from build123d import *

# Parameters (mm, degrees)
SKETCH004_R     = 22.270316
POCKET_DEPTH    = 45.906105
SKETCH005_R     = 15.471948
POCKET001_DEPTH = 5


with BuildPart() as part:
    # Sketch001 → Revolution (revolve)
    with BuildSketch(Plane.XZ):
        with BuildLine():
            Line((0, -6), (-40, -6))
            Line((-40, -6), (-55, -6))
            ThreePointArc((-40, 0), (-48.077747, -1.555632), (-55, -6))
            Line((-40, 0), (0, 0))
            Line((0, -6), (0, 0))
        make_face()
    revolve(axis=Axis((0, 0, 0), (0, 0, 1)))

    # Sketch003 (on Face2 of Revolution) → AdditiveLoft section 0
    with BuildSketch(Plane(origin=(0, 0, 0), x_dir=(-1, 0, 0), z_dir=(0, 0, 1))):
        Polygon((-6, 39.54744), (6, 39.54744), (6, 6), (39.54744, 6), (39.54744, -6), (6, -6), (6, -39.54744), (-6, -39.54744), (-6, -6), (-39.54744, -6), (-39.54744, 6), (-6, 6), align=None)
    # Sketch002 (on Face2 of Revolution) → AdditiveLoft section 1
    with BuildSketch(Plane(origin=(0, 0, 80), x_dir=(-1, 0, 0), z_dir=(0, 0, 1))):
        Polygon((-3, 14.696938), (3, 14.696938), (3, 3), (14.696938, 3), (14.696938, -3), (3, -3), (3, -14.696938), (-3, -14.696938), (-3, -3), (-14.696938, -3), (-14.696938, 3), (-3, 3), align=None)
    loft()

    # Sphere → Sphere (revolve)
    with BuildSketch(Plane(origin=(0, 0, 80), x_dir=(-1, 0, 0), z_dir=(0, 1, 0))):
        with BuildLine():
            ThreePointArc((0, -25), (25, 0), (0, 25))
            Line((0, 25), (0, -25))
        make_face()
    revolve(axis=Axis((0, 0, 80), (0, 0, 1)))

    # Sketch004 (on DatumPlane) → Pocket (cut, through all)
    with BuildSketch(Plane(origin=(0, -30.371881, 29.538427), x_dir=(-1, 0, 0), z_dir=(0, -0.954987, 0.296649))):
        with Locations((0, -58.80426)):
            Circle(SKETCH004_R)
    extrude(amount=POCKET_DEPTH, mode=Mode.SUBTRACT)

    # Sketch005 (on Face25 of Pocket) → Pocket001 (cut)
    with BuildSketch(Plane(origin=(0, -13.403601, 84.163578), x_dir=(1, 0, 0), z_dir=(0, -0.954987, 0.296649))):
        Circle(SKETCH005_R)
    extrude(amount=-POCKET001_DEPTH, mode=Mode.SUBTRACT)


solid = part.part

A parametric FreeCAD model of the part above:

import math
import FreeCAD as App
import Part
import Sketcher


def add_polygon(sketch, points):
    """Adds a closed chain of lines whose ends are joined by coincident constraints."""
    first, n = sketch.GeometryCount, len(points)
    for a, b in zip(points, points[1:] + points[:1]):
        sketch.addGeometry(Part.LineSegment(App.Vector(*a, 0), App.Vector(*b, 0)), False)
    for i in range(n):
        sketch.addConstraint(Sketcher.Constraint("Coincident", first + i, 2, first + (i + 1) % n, 1))

doc = App.newDocument("Part")
body = doc.addObject("PartDesign::Body", "Body")

# Sketch on XZ plane
sketch1 = body.newObject("Sketcher::SketchObject", "Sketch")
sketch1.AttachmentSupport = (doc.getObject("XZ_Plane"), [""])
sketch1.MapMode = "FlatFace"
sketch1.addGeometry([
    Part.LineSegment(App.Vector(-55, -6, 0), App.Vector(0, -6, 0)),
    Part.LineSegment(App.Vector(0, -6, 0), App.Vector(0, 0, 0)),
    Part.LineSegment(App.Vector(0, 0, 0), App.Vector(-40, 0, 0)),
    Part.ArcOfCircle(Part.Circle(App.Vector(-40, -22, 0), App.Vector(0, 0, 1), 22), math.radians(90), math.radians(134)),
], False)
sketch1.addConstraint([
    Sketcher.Constraint("Coincident", 0, 2, 1, 1),
    Sketcher.Constraint("Coincident", 1, 2, 2, 1),
    Sketcher.Constraint("Tangent", 2, 2, 3, 1),
    Sketcher.Constraint("Coincident", 3, 2, 0, 1),
    Sketcher.Constraint("Horizontal", 0),
    Sketcher.Constraint("Vertical", 1),
    Sketcher.Constraint("Horizontal", 2),
    Sketcher.Constraint("Coincident", 1, 2, -1, 1),
    Sketcher.Constraint("DistanceX", 0, 1, 0, 2, 55.0),
    Sketcher.Constraint("DistanceX", 2, 2, 2, 1, 40.0),
    Sketcher.Constraint("DistanceY", 1, 1, 1, 2, 6.0),
])
revolution = body.newObject("PartDesign::Revolution", "Revolution")
revolution.Profile = sketch1
revolution.ReferenceAxis = (sketch1, ["V_Axis"])
revolution.Angle = 360

# Sketch on XY plane
sketch2 = body.newObject("Sketcher::SketchObject", "Sketch001")
sketch2.AttachmentSupport = (doc.getObject("XY_Plane"), [""])
sketch2.MapMode = "FlatFace"
add_polygon(sketch2, [(-6, -40), (6, -40), (6, -6), (40, -6), (40, 6), (6, 6), (6, 40), (-6, 40), (-6, 6), (-40, 6), (-40, -6), (-6, -6)])  # lines 0-11
sketch2.addConstraint([
    Sketcher.Constraint("Horizontal", 0),
    Sketcher.Constraint("Vertical", 1),
    Sketcher.Constraint("Horizontal", 2),
    Sketcher.Constraint("Vertical", 3),
    Sketcher.Constraint("Horizontal", 4),
    Sketcher.Constraint("Vertical", 5),
    Sketcher.Constraint("Horizontal", 6),
    Sketcher.Constraint("Vertical", 7),
    Sketcher.Constraint("Horizontal", 8),
    Sketcher.Constraint("Vertical", 9),
    Sketcher.Constraint("Horizontal", 10),
    Sketcher.Constraint("Vertical", 11),
    Sketcher.Constraint("Symmetric", 0, 2, 6, 2, -1, 1),
    Sketcher.Constraint("Symmetric", 2, 2, 8, 2, -1, 1),
    Sketcher.Constraint("Symmetric", 4, 2, 10, 2, -1, 1),
    Sketcher.Constraint("Symmetric", 4, 2, 7, 2, -2),
    Sketcher.Constraint("Equal", 10, 1),
    Sketcher.Constraint("Equal", 6, 3),
    Sketcher.Constraint("DistanceX", 0, 1, 0, 2, 12.0),
    Sketcher.Constraint("DistanceX", 2, 1, 2, 2, 33.54744),
])

# Sketch on XY plane
sketch3 = body.newObject("Sketcher::SketchObject", "Sketch002")
sketch3.AttachmentSupport = (doc.getObject("XY_Plane"), [""])
sketch3.MapMode = "FlatFace"
sketch3.AttachmentOffset = App.Placement(App.Vector(0, 0, 80), App.Rotation())
add_polygon(sketch3, [(-3, -15), (3, -15), (3, -3), (15, -3), (15, 3), (3, 3), (3, 15), (-3, 15), (-3, 3), (-15, 3), (-15, -3), (-3, -3)])  # lines 0-11
sketch3.addConstraint([
    Sketcher.Constraint("Horizontal", 0),
    Sketcher.Constraint("Vertical", 1),
    Sketcher.Constraint("Horizontal", 2),
    Sketcher.Constraint("Vertical", 3),
    Sketcher.Constraint("Horizontal", 4),
    Sketcher.Constraint("Vertical", 5),
    Sketcher.Constraint("Horizontal", 6),
    Sketcher.Constraint("Vertical", 7),
    Sketcher.Constraint("Horizontal", 8),
    Sketcher.Constraint("Vertical", 9),
    Sketcher.Constraint("Horizontal", 10),
    Sketcher.Constraint("Vertical", 11),
    Sketcher.Constraint("Symmetric", 0, 2, 6, 2, -1, 1),
    Sketcher.Constraint("Symmetric", 2, 2, 8, 2, -1, 1),
    Sketcher.Constraint("Symmetric", 4, 2, 10, 2, -1, 1),
    Sketcher.Constraint("Symmetric", 4, 2, 7, 2, -2),
    Sketcher.Constraint("Equal", 10, 1),
    Sketcher.Constraint("Equal", 6, 3),
    Sketcher.Constraint("DistanceX", 0, 1, 0, 2, 6.0),
    Sketcher.Constraint("DistanceX", 2, 1, 2, 2, 11.696938),
])

additiveloft = body.newObject("PartDesign::AdditiveLoft", "AdditiveLoft")
additiveloft.Profile = sketch2
additiveloft.Sections = [sketch3]

# Sketch on XZ plane
sketch4 = body.newObject("Sketcher::SketchObject", "Sketch003")
sketch4.AttachmentSupport = (doc.getObject("XZ_Plane"), [""])
sketch4.MapMode = "FlatFace"
sketch4.addGeometry([
    Part.ArcOfCircle(Part.Circle(App.Vector(0, 80, 0), App.Vector(0, 0, 1), 25), math.radians(90), math.radians(270)),
    Part.LineSegment(App.Vector(0, 105, 0), App.Vector(0, 55, 0)),
], False)
sketch4.addConstraint([
    Sketcher.Constraint("Coincident", 0, 1, 1, 1),
    Sketcher.Constraint("Coincident", 1, 2, 0, 2),
    Sketcher.Constraint("Vertical", 1),
    Sketcher.Constraint("PointOnObject", 0, 3, -2),
    Sketcher.Constraint("PointOnObject", 0, 1, -2),
    Sketcher.Constraint("Radius", 0, 25.0),
    Sketcher.Constraint("DistanceY", -1, 1, 0, 3, 80.0),
])
revolution2 = body.newObject("PartDesign::Revolution", "Revolution001")
revolution2.Profile = sketch4
revolution2.ReferenceAxis = (sketch4, ["V_Axis"])
revolution2.Angle = 360

# Sketch on an angled plane
sketch5 = body.newObject("Sketcher::SketchObject", "Sketch004")
sketch5.Placement = App.Placement(App.Vector(0, -30.371881, 29.538427), App.Rotation(App.Vector(-1, 0, 0), App.Vector(0, -0.296648881, -0.954986618), App.Vector(0, -0.954986618, 0.296648881), "ZXY"))
sketch5.addGeometry(Part.Circle(App.Vector(0, -59, 0), App.Vector(0, 0, 1), 22), False)
sketch5.addConstraint([
    Sketcher.Constraint("PointOnObject", 0, 3, -2),
    Sketcher.Constraint("Diameter", 0, 44.540632),
    Sketcher.Constraint("DistanceY", 0, 3, -1, 1, 58.80426),
])
pocket1 = body.newObject("PartDesign::Pocket", "Pocket")
pocket1.Profile = sketch5
pocket1.Type = "ThroughAll"
pocket1.Reversed = True

# Sketch on an angled plane
sketch6 = body.newObject("Sketcher::SketchObject", "Sketch005")
sketch6.Placement = App.Placement(App.Vector(0, -13.403601, 84.163578), App.Rotation(App.Vector(1, 0, 0), App.Vector(0, 0.296648881, 0.954986618), App.Vector(0, -0.954986618, 0.296648881), "ZXY"))
sketch6.addGeometry(Part.Circle(App.Vector(0, 0, 0), App.Vector(0, 0, 1), 15), False)
sketch6.addConstraint([
    Sketcher.Constraint("Coincident", 0, 3, -1, 1),
    Sketcher.Constraint("Diameter", 0, 30.943896),
])
pocket2 = body.newObject("PartDesign::Pocket", "Pocket001")
pocket2.Profile = sketch6
pocket2.Length = 5

doc.recompute()
